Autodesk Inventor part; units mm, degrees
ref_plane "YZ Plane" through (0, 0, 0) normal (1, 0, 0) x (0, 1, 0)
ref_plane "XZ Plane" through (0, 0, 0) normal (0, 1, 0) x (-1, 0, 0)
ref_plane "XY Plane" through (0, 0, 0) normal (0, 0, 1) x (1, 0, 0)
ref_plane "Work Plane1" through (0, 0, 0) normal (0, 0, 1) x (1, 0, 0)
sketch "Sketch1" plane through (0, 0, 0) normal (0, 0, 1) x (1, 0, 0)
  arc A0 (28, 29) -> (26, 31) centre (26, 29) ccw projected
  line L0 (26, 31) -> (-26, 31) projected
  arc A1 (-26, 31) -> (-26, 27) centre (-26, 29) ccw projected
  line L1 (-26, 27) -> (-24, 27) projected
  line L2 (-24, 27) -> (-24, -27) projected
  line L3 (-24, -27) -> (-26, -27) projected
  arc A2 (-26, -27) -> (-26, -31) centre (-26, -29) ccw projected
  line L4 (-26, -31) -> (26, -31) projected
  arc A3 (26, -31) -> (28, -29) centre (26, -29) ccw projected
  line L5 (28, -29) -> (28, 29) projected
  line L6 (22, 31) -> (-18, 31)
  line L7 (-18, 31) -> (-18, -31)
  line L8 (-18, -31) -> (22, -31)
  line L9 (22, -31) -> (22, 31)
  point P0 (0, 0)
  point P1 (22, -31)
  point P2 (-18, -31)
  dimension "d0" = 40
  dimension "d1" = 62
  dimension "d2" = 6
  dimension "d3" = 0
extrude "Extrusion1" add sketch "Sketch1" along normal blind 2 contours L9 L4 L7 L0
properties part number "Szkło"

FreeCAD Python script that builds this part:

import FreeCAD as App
import Part
import Sketcher

V = App.Vector
Q = App.Units.Quantity

doc = App.newDocument("Part")
body = doc.addObject("PartDesign::Body", "Body")

sketch1 = doc.addObject("Sketcher::SketchObject", "Sketch")
body.addObject(sketch1)
sketch1.AttachmentSupport = (doc.XY_Plane, [""])
sketch1.MapMode = "FlatFace"
sketch1.addGeometry([
    Part.LineSegment(V(22, -31, 0), V(22, 31, 0)),
    Part.LineSegment(V(22, 31, 0), V(-18, 31, 0)),
    Part.LineSegment(V(-18, 31, 0), V(-18, -31, 0)),
    Part.LineSegment(V(-18, -31, 0), V(22, -31, 0)),
], False)
sketch1.addConstraint([
    Sketcher.Constraint("Coincident", 0, 2, 1, 1),
    Sketcher.Constraint("Coincident", 1, 2, 2, 1),
    Sketcher.Constraint("Coincident", 2, 2, 3, 1),
    Sketcher.Constraint("Coincident", 3, 2, 0, 1),
    Sketcher.Constraint("Vertical", 0),
    Sketcher.Constraint("Horizontal", 1),
    Sketcher.Constraint("Vertical", 2),
    Sketcher.Constraint("Horizontal", 3),
    Sketcher.Constraint("DistanceX", 1, 2, 1, 1, Q("40 mm")),
    Sketcher.Constraint("DistanceY", 0, 1, 0, 2, Q("62 mm")),
    Sketcher.Constraint("DistanceX", -1, 1, 0, 2, Q("22 mm")),
    Sketcher.Constraint("DistanceY", -1, 1, 0, 2, Q("31 mm")),
])
pad1 = doc.addObject("PartDesign::Pad", "Pad")
body.addObject(pad1)
pad1.Profile = sketch1
pad1.Length = 2

doc.recompute()
